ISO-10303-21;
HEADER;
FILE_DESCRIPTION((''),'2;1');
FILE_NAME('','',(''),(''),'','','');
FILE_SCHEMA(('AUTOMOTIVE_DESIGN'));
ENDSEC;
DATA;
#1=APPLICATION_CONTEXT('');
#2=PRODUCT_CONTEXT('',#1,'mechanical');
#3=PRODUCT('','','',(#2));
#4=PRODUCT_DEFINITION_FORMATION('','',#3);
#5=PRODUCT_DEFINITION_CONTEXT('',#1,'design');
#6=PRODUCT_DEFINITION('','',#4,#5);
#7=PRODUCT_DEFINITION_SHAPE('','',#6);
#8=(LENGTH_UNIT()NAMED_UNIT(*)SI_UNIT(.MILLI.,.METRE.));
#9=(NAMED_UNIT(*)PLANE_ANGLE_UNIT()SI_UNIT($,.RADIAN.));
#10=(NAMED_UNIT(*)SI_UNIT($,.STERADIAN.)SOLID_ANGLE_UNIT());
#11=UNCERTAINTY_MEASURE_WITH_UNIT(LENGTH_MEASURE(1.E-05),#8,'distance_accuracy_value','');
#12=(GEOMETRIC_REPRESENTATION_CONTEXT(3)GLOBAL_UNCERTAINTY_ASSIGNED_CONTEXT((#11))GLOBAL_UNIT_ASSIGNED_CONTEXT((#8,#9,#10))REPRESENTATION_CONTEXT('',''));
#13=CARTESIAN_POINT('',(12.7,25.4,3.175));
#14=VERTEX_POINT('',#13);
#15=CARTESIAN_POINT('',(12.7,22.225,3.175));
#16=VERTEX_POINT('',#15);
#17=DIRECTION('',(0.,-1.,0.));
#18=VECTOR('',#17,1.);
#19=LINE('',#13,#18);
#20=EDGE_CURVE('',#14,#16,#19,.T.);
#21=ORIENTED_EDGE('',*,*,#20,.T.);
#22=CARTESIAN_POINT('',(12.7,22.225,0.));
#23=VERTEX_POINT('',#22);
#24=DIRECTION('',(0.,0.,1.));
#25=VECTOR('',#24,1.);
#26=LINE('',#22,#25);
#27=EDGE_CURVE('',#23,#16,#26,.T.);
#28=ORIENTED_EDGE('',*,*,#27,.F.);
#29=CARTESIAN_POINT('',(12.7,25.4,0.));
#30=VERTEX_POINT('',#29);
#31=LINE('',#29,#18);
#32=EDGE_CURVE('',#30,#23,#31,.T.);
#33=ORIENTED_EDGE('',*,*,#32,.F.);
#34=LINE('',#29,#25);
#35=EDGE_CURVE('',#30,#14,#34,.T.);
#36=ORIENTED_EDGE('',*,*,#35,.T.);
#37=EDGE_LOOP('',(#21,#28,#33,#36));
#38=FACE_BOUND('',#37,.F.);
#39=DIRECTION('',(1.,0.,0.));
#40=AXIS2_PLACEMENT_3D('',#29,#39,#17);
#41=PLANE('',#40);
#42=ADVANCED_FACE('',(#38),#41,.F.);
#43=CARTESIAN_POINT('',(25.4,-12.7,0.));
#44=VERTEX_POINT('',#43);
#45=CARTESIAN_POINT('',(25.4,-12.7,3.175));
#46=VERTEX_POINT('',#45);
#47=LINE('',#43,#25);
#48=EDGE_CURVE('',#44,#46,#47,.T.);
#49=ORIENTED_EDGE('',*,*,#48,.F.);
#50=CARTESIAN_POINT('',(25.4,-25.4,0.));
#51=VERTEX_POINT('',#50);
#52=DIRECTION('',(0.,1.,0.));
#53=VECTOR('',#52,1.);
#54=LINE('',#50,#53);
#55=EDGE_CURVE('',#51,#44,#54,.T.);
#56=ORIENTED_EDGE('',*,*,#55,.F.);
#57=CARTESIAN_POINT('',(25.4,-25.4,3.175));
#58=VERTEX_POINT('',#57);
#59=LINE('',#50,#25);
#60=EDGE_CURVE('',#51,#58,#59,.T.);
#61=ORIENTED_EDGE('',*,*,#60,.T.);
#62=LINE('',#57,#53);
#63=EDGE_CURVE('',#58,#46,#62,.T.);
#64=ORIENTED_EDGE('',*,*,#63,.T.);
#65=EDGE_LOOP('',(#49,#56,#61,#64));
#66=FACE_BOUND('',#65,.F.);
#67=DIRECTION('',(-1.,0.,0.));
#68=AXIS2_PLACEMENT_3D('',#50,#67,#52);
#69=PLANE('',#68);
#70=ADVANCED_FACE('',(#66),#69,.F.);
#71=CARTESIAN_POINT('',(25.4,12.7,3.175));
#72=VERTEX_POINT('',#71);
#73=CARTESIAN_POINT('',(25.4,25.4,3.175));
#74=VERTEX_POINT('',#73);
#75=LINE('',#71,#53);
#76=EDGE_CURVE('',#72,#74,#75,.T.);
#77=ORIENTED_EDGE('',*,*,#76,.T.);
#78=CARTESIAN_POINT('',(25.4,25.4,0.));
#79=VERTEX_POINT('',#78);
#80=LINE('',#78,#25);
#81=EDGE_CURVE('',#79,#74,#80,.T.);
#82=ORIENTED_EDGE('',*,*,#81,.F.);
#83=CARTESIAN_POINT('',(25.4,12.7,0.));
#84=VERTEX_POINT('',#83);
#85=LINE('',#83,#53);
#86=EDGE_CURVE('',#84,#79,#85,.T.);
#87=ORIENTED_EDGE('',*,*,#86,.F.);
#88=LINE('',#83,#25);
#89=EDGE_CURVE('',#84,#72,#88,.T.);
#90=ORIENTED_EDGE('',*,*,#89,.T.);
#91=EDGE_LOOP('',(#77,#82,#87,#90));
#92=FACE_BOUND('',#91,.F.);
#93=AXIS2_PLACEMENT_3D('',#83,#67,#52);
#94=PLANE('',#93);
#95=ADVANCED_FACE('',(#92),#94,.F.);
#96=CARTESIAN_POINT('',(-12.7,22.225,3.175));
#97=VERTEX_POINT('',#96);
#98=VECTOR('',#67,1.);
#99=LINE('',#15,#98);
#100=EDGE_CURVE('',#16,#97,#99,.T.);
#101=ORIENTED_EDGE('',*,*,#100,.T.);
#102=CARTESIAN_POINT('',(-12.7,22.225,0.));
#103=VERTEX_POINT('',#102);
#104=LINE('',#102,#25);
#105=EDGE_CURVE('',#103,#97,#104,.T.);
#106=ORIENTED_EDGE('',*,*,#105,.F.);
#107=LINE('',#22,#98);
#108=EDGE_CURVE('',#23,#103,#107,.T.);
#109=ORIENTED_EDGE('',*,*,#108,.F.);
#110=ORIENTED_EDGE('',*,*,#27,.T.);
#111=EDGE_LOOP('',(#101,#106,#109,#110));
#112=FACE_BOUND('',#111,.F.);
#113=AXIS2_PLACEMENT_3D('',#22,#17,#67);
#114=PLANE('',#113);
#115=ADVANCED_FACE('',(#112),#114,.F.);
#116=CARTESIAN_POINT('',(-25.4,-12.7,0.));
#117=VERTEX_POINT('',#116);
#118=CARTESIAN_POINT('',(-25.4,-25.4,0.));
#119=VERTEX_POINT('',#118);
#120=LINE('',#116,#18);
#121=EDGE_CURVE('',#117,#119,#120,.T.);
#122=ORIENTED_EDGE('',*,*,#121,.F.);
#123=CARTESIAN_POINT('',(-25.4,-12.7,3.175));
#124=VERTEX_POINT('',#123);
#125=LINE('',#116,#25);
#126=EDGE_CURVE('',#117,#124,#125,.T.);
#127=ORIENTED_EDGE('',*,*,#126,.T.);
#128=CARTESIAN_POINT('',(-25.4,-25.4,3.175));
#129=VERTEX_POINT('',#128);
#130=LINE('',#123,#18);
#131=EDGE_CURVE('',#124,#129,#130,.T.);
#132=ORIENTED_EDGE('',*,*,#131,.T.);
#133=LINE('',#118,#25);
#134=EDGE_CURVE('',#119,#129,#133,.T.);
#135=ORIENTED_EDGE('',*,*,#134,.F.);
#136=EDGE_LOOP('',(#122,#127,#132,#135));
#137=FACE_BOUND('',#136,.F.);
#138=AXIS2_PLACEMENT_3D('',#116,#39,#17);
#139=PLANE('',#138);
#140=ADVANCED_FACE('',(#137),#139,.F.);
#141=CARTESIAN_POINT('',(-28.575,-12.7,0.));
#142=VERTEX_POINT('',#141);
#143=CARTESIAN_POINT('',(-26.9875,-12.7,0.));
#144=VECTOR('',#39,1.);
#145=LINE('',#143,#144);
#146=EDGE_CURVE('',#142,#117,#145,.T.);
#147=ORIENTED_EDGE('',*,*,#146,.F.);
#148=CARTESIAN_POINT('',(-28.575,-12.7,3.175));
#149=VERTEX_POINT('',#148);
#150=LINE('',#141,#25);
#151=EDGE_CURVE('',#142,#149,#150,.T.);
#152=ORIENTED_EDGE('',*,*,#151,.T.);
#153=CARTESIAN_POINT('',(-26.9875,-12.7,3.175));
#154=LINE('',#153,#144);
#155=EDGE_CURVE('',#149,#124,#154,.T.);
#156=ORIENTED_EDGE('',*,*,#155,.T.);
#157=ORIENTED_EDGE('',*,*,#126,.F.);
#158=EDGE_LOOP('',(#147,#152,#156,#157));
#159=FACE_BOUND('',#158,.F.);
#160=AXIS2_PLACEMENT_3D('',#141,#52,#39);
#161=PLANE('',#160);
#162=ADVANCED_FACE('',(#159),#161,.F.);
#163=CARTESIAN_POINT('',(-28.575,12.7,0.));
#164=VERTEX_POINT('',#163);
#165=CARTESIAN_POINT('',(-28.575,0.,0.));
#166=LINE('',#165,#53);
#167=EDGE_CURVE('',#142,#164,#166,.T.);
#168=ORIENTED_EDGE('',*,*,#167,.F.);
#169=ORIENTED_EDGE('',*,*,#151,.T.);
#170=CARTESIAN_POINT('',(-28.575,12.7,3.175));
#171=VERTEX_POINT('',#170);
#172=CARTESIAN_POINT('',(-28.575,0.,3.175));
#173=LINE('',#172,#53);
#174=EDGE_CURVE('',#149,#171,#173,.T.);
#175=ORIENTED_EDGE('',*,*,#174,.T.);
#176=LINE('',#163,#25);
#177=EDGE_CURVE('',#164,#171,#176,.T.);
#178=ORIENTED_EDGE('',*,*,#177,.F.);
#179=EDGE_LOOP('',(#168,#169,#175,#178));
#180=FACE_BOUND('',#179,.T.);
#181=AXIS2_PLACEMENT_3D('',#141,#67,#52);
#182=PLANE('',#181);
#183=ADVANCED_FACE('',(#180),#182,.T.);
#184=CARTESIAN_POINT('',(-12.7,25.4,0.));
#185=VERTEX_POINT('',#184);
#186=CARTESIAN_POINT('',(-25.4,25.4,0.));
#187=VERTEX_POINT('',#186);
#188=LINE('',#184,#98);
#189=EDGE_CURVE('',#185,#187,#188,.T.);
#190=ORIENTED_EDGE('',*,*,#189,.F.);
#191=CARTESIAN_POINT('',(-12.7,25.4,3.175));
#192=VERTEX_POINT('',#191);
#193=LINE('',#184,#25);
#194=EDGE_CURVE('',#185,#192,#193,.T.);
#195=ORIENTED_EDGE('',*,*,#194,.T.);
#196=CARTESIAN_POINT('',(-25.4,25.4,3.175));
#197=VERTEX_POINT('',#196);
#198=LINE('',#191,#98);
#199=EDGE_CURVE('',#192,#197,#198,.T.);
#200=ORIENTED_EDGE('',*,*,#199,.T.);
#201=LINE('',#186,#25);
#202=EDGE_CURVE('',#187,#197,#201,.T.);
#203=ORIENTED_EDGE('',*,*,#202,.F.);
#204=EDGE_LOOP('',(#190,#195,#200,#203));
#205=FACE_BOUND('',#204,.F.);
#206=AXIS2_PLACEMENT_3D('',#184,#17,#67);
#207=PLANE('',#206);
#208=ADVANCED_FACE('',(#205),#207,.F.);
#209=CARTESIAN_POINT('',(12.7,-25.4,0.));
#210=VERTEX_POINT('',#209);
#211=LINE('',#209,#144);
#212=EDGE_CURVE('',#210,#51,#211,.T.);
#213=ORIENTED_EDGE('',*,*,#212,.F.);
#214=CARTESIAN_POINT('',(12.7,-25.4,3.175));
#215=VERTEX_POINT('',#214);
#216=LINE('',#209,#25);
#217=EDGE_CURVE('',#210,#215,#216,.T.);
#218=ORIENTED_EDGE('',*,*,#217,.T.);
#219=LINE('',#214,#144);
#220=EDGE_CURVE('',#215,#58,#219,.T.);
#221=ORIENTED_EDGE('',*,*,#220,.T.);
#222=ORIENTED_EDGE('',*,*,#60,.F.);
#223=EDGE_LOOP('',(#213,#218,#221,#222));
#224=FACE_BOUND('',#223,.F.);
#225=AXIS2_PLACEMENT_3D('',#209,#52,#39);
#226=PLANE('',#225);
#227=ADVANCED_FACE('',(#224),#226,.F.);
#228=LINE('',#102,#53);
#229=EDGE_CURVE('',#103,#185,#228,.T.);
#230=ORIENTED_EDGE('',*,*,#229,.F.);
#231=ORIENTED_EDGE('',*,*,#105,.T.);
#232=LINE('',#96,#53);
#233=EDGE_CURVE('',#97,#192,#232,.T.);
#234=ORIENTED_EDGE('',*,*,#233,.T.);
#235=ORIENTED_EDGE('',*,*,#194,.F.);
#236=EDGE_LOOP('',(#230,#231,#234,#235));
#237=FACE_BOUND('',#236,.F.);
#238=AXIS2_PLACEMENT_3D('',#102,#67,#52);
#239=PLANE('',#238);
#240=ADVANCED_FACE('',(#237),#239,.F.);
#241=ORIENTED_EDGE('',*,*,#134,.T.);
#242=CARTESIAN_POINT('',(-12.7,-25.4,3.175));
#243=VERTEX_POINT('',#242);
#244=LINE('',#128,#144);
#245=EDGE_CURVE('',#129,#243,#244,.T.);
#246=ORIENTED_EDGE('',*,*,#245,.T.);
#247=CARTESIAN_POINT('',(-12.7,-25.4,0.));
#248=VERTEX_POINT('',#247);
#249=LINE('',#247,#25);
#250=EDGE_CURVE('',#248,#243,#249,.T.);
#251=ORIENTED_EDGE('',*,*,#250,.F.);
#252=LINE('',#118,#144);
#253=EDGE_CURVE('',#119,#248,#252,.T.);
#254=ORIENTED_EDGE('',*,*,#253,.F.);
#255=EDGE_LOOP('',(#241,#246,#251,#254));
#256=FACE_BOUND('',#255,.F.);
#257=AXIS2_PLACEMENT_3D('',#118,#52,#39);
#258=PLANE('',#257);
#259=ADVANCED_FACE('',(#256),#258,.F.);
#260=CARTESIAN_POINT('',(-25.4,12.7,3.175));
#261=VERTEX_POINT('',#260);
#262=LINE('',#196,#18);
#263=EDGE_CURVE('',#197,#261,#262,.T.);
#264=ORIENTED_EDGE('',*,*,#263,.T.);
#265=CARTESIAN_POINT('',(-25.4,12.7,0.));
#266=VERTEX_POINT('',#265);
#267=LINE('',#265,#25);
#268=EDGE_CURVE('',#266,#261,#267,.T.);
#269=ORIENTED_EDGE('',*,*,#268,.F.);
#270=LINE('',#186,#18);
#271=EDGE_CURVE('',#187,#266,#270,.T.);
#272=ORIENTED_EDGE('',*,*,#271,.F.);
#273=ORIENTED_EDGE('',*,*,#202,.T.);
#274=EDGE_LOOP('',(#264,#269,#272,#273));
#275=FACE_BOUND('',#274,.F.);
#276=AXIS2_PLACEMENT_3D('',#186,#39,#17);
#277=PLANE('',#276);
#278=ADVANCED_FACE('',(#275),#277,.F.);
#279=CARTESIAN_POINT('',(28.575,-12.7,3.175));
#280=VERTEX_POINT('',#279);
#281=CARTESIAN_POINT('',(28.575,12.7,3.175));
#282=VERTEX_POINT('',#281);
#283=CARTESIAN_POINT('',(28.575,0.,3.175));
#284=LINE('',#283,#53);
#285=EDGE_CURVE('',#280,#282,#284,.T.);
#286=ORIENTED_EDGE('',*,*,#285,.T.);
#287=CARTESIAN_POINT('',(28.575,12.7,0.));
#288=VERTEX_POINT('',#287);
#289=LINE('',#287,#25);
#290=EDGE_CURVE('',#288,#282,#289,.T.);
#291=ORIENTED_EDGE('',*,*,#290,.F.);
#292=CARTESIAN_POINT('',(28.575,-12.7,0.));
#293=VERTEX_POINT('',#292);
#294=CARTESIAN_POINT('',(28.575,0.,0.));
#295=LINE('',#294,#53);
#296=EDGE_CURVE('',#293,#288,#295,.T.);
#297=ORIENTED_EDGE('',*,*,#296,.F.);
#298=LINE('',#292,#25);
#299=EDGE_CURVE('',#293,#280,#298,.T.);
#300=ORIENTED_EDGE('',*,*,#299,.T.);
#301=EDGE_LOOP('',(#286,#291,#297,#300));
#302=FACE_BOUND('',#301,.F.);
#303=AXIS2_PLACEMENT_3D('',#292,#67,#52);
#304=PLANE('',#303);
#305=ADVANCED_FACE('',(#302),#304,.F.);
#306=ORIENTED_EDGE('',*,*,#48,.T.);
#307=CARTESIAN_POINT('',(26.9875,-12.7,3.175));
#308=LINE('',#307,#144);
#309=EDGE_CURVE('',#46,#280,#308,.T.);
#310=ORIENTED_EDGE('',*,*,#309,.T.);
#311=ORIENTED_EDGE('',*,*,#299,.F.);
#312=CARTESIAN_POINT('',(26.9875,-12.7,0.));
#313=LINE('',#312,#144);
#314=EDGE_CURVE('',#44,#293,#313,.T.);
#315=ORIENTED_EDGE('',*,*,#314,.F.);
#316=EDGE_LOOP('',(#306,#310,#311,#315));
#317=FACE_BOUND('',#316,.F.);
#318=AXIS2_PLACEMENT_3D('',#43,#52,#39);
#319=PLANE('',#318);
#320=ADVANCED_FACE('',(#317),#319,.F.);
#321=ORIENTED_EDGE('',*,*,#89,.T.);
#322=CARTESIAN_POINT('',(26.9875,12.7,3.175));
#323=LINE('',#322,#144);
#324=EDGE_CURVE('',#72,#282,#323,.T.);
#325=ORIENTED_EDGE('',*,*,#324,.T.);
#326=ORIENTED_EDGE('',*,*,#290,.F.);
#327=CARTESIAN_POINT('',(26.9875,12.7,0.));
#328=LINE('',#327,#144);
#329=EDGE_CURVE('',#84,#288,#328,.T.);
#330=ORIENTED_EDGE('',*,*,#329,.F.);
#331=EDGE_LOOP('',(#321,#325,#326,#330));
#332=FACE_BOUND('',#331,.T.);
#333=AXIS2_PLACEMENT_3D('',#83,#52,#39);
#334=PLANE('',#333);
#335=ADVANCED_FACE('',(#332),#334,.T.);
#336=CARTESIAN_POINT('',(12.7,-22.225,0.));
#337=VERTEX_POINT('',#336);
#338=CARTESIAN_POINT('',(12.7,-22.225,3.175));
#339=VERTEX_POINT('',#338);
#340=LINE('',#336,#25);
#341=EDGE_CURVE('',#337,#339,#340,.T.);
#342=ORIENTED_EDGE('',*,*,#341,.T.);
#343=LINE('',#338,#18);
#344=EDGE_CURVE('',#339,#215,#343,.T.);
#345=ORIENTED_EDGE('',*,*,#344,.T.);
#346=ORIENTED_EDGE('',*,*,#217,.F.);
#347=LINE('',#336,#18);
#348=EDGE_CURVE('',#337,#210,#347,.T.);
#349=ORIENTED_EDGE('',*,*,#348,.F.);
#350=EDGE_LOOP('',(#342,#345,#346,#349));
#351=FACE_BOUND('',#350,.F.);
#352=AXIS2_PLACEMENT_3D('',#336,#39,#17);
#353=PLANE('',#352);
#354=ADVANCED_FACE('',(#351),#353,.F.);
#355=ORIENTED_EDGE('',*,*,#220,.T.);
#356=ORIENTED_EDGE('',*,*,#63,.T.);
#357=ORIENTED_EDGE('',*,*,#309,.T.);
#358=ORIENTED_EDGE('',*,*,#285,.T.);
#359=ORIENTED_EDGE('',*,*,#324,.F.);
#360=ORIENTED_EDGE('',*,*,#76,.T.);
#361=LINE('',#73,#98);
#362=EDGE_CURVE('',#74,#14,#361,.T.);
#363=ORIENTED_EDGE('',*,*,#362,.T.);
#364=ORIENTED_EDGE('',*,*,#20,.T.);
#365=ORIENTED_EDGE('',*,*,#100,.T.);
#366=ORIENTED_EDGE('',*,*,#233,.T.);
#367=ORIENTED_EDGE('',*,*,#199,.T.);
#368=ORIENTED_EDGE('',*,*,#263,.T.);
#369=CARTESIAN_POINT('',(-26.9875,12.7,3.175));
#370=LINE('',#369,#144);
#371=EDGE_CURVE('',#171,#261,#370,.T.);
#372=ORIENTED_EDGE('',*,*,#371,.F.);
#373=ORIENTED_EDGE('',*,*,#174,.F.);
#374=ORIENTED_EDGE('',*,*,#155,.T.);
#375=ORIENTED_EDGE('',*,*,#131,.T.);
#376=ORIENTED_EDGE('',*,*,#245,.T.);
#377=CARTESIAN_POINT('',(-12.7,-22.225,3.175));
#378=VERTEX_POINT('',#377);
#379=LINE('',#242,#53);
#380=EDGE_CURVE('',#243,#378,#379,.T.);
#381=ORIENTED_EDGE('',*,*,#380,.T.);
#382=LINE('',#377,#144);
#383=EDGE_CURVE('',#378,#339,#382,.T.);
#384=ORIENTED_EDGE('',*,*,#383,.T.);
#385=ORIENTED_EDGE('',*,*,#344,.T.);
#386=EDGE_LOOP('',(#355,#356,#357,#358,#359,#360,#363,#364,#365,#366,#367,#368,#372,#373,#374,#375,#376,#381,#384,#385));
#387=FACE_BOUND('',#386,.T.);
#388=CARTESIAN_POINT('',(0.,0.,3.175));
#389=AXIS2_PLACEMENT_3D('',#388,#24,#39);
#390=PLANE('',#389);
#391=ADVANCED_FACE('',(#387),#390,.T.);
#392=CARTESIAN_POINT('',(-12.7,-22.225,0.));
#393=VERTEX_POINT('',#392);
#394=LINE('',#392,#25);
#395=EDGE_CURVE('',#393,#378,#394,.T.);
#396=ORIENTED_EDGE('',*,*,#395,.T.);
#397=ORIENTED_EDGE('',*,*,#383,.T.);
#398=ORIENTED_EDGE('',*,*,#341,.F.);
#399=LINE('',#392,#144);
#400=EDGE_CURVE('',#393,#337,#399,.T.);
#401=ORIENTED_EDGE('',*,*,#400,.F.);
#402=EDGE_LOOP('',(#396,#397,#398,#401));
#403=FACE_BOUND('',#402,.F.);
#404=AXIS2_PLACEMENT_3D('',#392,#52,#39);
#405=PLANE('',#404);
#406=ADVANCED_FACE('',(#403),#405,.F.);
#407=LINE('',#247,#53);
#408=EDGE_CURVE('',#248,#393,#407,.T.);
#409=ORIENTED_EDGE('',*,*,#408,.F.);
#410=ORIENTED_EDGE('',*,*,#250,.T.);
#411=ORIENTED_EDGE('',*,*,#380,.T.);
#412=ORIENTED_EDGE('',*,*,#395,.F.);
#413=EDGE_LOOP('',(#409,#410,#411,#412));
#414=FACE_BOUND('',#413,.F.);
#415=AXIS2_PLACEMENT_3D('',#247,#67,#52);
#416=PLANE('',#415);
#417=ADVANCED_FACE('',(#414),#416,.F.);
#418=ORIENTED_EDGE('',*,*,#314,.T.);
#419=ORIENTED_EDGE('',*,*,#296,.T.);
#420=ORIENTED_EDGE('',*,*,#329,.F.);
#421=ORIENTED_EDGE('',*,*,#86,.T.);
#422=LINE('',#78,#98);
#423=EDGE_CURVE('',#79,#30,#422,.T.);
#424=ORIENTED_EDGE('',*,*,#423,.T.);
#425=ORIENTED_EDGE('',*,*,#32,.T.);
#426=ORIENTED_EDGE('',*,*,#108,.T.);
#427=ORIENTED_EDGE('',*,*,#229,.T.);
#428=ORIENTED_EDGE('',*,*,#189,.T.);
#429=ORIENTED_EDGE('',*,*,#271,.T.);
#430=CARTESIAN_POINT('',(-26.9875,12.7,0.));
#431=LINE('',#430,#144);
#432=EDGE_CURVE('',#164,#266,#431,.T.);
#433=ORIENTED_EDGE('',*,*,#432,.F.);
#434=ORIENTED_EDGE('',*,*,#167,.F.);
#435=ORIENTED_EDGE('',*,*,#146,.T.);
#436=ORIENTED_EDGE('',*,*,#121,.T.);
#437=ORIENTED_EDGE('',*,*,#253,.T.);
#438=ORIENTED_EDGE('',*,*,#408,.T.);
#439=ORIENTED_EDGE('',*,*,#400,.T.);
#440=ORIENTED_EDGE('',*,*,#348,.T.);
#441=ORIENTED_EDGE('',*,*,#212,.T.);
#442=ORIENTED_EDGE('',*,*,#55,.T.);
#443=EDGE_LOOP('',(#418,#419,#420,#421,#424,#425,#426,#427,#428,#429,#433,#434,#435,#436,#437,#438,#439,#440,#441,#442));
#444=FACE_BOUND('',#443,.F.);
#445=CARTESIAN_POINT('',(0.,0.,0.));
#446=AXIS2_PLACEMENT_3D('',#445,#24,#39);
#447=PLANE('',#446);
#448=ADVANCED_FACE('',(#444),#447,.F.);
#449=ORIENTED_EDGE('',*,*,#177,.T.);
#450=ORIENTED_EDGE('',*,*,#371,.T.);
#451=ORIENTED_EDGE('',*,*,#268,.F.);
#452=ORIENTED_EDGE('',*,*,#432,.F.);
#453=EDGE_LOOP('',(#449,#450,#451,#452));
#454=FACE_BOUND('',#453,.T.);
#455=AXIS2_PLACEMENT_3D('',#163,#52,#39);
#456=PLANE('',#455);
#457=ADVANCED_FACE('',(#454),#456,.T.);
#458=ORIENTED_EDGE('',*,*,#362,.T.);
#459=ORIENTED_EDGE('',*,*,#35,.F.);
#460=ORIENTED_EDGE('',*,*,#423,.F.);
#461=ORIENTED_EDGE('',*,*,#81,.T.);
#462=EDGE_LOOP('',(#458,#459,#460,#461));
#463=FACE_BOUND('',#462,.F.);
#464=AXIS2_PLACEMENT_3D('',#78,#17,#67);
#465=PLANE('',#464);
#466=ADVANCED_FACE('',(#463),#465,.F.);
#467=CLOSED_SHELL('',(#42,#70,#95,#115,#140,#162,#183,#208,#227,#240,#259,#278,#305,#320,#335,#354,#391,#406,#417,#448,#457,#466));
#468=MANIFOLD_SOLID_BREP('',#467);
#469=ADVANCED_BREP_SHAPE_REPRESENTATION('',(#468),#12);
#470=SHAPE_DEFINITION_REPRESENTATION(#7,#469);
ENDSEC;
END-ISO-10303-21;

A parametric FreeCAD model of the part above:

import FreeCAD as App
import Part
import Sketcher

V = App.Vector
Q = App.Units.Quantity


def add_polygon(sketch, points):
    """Adds a closed chain of lines whose ends are joined by coincident constraints."""
    first, n = sketch.GeometryCount, len(points)
    for a, b in zip(points, points[1:] + points[:1]):
        sketch.addGeometry(Part.LineSegment(App.Vector(*a, 0), App.Vector(*b, 0)), False)
    for i in range(n):
        sketch.addConstraint(Sketcher.Constraint("Coincident", first + i, 2, first + (i + 1) % n, 1))

doc = App.newDocument("Part")
params = doc.addObject("Spreadsheet::Sheet", "Params")
for row, (alias, value) in enumerate([
    ("sketch1_width", "1 in"),
    ("sketch1_width2", "0.5 in"),
    ("sketch1_width3", "0.125 in"),
    ("pad1_length", "0.125 in"),
], start=1):
    params.set(f"A{row}", alias)
    params.set(f"B{row}", "=" + value)
    params.setAlias(f"B{row}", alias)

body = doc.addObject("PartDesign::Body", "Body")

sketch1 = body.newObject("Sketcher::SketchObject", "Sketch")
sketch1.AttachmentSupport = (doc.getObject("XY_Plane"), [""])
sketch1.MapMode = "FlatFace"
add_polygon(sketch1, [(25.4, 12.7), (25.4, 25.4), (12.7, 25.4), (12.7, 22.2), (-12.7, 22.2), (-12.7, 25.4), (-25.4, 25.4), (-25.4, 12.7), (-28.6, 12.7), (-28.6, -12.7), (-25.4, -12.7), (-25.4, -25.4), (-12.7, -25.4), (-12.7, -22.2), (12.7, -22.2), (12.7, -25.4), (25.4, -25.4), (25.4, -12.7), (28.6, -12.7), (28.6, 12.7)])
sketch1.addConstraint(Sketcher.Constraint("Vertical", 0))
sketch1.addConstraint(Sketcher.Constraint("Horizontal", 1))
sketch1.addConstraint(Sketcher.Constraint("Vertical", 2))
sketch1.addConstraint(Sketcher.Constraint("Horizontal", 3))
sketch1.addConstraint(Sketcher.Constraint("Vertical", 4))
sketch1.addConstraint(Sketcher.Constraint("Horizontal", 5))
sketch1.addConstraint(Sketcher.Constraint("Vertical", 6))
sketch1.addConstraint(Sketcher.Constraint("Horizontal", 7))
sketch1.addConstraint(Sketcher.Constraint("Vertical", 8))
sketch1.addConstraint(Sketcher.Constraint("Horizontal", 9))
sketch1.addConstraint(Sketcher.Constraint("Vertical", 10))
sketch1.addConstraint(Sketcher.Constraint("Horizontal", 11))
sketch1.addConstraint(Sketcher.Constraint("Vertical", 12))
sketch1.addConstraint(Sketcher.Constraint("Horizontal", 13))
sketch1.addConstraint(Sketcher.Constraint("Vertical", 14))
sketch1.addConstraint(Sketcher.Constraint("Horizontal", 15))
sketch1.addConstraint(Sketcher.Constraint("Vertical", 16))
sketch1.addConstraint(Sketcher.Constraint("Horizontal", 17))
sketch1.addConstraint(Sketcher.Constraint("Vertical", 18))
sketch1.addConstraint(Sketcher.Constraint("Horizontal", 19))
sketch1.addConstraint(Sketcher.Constraint("Symmetric", 0, 2, 10, 2, -1, 1))
sketch1.addConstraint(Sketcher.Constraint("Symmetric", 2, 2, 12, 2, -1, 1))
sketch1.addConstraint(Sketcher.Constraint("Symmetric", 4, 2, 14, 2, -1, 1))
sketch1.addConstraint(Sketcher.Constraint("Symmetric", 6, 2, 16, 2, -1, 1))
sketch1.addConstraint(Sketcher.Constraint("Symmetric", 8, 2, 18, 2, -1, 1))
sketch1.addConstraint(Sketcher.Constraint("Symmetric", 1, 2, 4, 2, -2))
sketch1.addConstraint(Sketcher.Constraint("Symmetric", 9, 2, 16, 2, -2))
sketch1.addConstraint(Sketcher.Constraint("Equal", 15, 0))
sketch1.addConstraint(Sketcher.Constraint("Equal", 19, 2))
sketch1.addConstraint(Sketcher.Constraint("Equal", 13, 8))
sketch1.addConstraint(Sketcher.Constraint("DistanceX", 3, 2, 3, 1, Q("1 in")))
sketch1.addConstraint(Sketcher.Constraint("DistanceX", 1, 2, 1, 1, Q("0.5 in")))
sketch1.addConstraint(Sketcher.Constraint("DistanceX", 7, 2, 7, 1, Q("0.125 in")))
sketch1.setExpression("Constraints[50]", "Params.sketch1_width")
sketch1.setExpression("Constraints[51]", "Params.sketch1_width2")
sketch1.setExpression("Constraints[52]", "Params.sketch1_width3")
pad1 = body.newObject("PartDesign::Pad", "Pad")
pad1.Profile = sketch1
pad1.setExpression("Length", "Params.pad1_length")

doc.recompute()
